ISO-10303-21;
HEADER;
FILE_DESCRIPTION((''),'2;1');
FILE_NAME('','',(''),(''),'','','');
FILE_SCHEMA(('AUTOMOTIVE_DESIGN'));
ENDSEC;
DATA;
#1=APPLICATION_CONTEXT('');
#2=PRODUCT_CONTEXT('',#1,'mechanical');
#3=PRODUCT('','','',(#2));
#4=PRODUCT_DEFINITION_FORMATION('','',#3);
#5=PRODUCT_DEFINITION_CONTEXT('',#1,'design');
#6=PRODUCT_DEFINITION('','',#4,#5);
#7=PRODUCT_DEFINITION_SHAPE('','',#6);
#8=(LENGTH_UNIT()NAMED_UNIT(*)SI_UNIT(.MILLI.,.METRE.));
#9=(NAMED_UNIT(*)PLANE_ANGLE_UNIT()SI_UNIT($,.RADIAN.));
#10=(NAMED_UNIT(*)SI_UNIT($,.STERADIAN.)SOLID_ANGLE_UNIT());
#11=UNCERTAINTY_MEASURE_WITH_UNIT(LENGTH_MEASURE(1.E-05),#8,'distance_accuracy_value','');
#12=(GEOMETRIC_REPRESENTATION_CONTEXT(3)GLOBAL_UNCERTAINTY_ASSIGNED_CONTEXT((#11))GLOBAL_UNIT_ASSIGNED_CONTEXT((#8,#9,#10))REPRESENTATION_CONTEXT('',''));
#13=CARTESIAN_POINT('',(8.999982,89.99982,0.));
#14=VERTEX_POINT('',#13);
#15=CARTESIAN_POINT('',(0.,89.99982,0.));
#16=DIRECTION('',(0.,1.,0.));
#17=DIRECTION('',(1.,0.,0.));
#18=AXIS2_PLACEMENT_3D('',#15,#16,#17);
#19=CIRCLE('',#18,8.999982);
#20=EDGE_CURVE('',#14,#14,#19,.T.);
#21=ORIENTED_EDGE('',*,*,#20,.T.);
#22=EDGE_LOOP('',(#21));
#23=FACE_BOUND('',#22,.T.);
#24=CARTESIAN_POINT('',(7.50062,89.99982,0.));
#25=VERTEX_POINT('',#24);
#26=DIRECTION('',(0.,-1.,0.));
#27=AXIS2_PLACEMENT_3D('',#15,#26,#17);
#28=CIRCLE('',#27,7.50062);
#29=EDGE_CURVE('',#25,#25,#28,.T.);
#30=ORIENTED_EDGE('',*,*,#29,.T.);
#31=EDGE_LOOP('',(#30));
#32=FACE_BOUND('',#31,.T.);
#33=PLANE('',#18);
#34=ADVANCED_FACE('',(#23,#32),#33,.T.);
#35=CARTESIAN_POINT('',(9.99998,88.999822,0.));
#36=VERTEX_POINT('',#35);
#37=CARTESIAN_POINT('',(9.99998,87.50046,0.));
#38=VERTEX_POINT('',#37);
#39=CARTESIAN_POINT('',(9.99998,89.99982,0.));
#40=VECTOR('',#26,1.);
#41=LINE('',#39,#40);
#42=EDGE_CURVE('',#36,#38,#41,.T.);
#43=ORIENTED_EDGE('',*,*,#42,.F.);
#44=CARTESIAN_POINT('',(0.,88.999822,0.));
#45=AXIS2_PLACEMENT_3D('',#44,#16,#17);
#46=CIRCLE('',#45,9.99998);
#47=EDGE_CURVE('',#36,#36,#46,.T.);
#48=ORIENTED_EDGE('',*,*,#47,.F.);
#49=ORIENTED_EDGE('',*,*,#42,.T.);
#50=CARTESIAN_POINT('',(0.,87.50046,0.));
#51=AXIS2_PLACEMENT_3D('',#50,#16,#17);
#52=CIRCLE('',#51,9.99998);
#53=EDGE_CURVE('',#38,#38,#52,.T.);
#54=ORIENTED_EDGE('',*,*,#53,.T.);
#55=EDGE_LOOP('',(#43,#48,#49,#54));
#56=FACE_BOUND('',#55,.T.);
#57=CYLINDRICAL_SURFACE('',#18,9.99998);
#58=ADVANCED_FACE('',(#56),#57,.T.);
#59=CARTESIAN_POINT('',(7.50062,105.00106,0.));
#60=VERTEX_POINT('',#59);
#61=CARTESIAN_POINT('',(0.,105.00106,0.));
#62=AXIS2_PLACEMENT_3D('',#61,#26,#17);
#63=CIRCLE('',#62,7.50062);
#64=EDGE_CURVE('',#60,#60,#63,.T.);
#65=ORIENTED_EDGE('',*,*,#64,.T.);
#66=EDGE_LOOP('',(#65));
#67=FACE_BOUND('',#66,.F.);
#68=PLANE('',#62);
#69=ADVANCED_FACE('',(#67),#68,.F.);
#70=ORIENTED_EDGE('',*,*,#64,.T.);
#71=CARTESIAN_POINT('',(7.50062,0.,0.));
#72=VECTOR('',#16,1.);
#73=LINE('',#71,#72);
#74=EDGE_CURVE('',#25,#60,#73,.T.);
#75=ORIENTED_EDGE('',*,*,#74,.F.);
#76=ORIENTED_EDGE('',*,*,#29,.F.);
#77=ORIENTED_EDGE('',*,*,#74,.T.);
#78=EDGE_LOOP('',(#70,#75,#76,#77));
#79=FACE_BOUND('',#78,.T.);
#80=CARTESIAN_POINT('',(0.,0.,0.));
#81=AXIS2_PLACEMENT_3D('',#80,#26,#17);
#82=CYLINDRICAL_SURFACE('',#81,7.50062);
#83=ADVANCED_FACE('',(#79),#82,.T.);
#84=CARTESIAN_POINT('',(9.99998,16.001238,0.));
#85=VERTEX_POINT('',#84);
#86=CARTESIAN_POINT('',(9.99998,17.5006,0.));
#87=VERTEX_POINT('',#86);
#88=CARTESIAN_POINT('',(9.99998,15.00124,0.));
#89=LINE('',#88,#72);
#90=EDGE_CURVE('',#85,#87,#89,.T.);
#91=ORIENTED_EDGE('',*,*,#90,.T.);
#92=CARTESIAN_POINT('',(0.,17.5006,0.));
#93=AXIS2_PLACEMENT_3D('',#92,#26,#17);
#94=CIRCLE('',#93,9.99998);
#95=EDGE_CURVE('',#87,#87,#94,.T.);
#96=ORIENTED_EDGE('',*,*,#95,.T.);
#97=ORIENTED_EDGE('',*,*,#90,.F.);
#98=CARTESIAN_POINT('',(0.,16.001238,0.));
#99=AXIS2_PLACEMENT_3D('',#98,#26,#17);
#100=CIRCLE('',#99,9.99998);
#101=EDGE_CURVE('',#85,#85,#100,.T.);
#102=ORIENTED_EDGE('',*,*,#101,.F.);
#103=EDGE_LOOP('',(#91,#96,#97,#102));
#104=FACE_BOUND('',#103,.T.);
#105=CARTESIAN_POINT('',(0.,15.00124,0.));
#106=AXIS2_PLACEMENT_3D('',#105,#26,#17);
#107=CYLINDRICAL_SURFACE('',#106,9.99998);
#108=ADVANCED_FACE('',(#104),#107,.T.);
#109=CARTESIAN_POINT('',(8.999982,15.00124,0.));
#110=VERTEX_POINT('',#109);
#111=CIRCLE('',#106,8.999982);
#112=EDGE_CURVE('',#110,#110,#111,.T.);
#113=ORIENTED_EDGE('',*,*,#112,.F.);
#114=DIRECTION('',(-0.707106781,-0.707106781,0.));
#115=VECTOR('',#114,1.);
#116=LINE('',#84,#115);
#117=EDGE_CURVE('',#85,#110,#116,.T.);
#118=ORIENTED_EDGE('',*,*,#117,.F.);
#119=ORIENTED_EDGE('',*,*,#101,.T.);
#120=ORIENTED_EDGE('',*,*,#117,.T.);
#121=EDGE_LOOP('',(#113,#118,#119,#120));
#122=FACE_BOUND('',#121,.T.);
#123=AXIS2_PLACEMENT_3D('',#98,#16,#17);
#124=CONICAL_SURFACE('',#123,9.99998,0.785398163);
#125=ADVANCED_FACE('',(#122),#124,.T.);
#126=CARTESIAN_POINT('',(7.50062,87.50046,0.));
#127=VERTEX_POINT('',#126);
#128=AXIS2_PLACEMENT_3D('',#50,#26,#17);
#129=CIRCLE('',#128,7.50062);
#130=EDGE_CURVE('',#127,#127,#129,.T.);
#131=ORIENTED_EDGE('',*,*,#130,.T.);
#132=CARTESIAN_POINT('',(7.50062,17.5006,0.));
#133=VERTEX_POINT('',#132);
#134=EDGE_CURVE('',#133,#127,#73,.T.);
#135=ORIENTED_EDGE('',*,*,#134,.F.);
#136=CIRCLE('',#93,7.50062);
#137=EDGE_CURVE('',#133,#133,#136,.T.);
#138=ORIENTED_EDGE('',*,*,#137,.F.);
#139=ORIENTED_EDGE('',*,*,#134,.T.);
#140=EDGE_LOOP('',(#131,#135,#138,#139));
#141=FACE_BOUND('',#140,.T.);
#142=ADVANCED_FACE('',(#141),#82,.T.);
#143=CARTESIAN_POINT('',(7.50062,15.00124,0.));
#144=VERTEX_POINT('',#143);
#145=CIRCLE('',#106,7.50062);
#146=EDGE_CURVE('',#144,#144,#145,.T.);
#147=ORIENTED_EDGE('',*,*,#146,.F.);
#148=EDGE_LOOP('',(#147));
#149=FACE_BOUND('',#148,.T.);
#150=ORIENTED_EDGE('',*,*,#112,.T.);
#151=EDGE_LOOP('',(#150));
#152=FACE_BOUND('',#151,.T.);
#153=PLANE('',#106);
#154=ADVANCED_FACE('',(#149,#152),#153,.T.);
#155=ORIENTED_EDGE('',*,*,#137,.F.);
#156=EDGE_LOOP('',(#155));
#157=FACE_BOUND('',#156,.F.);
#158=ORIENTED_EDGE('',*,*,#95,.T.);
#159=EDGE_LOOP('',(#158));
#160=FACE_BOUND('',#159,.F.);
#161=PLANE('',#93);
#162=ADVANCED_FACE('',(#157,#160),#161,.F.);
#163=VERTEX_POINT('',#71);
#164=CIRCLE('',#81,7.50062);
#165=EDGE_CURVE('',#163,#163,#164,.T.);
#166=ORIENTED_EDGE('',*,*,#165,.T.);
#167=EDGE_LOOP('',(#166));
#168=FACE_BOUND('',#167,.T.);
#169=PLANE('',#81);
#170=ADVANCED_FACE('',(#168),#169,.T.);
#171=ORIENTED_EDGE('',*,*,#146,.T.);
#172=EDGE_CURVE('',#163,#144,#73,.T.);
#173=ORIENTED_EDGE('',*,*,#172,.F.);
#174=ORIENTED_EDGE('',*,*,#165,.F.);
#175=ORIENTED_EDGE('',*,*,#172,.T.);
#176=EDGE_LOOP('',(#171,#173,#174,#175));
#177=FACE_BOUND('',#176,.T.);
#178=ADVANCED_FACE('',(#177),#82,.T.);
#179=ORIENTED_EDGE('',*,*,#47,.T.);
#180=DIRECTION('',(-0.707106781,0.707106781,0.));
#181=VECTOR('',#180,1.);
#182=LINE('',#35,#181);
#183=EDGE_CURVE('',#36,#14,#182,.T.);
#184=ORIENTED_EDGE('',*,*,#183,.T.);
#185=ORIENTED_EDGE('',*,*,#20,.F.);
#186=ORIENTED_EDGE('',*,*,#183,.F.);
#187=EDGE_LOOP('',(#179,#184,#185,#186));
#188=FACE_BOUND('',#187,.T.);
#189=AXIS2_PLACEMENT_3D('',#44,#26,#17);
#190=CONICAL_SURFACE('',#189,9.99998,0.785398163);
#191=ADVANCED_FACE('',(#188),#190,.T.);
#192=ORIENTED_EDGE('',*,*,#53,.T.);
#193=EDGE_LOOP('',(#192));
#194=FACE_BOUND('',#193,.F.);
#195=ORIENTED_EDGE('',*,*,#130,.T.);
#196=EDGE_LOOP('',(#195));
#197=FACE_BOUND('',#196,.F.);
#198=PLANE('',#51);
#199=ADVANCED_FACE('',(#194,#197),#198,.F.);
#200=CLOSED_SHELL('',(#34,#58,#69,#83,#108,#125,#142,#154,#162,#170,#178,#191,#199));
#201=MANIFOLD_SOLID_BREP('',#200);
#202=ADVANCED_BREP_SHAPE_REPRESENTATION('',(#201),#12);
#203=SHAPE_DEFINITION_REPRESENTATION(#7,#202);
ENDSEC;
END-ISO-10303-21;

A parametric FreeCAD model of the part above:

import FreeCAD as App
import Part
import Sketcher
Q = App.Units.Quantity


def edges_at(feature, points):
    """Names of the edges that pass closest to the given points."""
    edges = feature.Shape.Edges
    near = lambda p: min(range(len(edges)), key=lambda i: edges[i].distToShape(Part.Vertex(*p))[0])
    return sorted({f"Edge{near(p) + 1}" for p in points})

doc = App.newDocument("Part")
body = doc.addObject("PartDesign::Body", "Body")

# Sketch on XZ plane
sketch1 = doc.addObject("Sketcher::SketchObject", "Sketch")
body.addObject(sketch1)
sketch1.AttachmentSupport = (doc.XZ_Plane, [""])
sketch1.MapMode = "FlatFace"
sketch1.addGeometry(Part.Circle(App.Vector(0, 0, 0), App.Vector(0, 0, 1), 8), False)
sketch1.addConstraint(Sketcher.Constraint("Coincident", 0, 3, -1, 1))
sketch1.addConstraint(Sketcher.Constraint("Diameter", 0, Q("15.00124 mm")))
pad1 = doc.addObject("PartDesign::Pad", "Pad")
body.addObject(pad1)
pad1.Profile = sketch1
pad1.Length = 105.00106
pad1.Reversed = True

# Sketch on XZ plane
sketch2 = doc.addObject("Sketcher::SketchObject", "Sketch001")
body.addObject(sketch2)
sketch2.AttachmentSupport = (doc.XZ_Plane, [""])
sketch2.MapMode = "FlatFace"
sketch2.AttachmentOffset = App.Placement(App.Vector(0, 0, -15.00124), App.Rotation())
sketch2.addGeometry(Part.Circle(App.Vector(0, 0, 0), App.Vector(0, 0, 1), 10), False)
sketch2.addConstraint(Sketcher.Constraint("Coincident", 0, 3, -1, 1))
sketch2.addConstraint(Sketcher.Constraint("Diameter", 0, Q("19.99996 mm")))
pad2 = doc.addObject("PartDesign::Pad", "Pad001")
body.addObject(pad2)
pad2.Profile = sketch2
pad2.Length = 2.49936
pad2.Reversed = True

# Sketch on XZ plane
sketch3 = doc.addObject("Sketcher::SketchObject", "Sketch002")
body.addObject(sketch3)
sketch3.AttachmentSupport = (doc.XZ_Plane, [""])
sketch3.MapMode = "FlatFace"
sketch3.AttachmentOffset = App.Placement(App.Vector(0, 0, -89.99982), App.Rotation())
sketch3.addGeometry(Part.Circle(App.Vector(0, 0, 0), App.Vector(0, 0, 1), 10), False)
sketch3.addConstraint(Sketcher.Constraint("Coincident", 0, 3, -1, 1))
sketch3.addConstraint(Sketcher.Constraint("Diameter", 0, Q("19.99996 mm")))
pad3 = doc.addObject("PartDesign::Pad", "Pad002")
body.addObject(pad3)
pad3.Profile = sketch3
pad3.Length = 2.49936
doc.recompute()

chamfer = doc.addObject("PartDesign::Chamfer", "Chamfer")
body.addObject(chamfer)
chamfer.Base = (pad3, edges_at(pad3, [(-10, 15.001, 0), (-10, 90, 0)]))
chamfer.Size = 0.999998

doc.recompute()
